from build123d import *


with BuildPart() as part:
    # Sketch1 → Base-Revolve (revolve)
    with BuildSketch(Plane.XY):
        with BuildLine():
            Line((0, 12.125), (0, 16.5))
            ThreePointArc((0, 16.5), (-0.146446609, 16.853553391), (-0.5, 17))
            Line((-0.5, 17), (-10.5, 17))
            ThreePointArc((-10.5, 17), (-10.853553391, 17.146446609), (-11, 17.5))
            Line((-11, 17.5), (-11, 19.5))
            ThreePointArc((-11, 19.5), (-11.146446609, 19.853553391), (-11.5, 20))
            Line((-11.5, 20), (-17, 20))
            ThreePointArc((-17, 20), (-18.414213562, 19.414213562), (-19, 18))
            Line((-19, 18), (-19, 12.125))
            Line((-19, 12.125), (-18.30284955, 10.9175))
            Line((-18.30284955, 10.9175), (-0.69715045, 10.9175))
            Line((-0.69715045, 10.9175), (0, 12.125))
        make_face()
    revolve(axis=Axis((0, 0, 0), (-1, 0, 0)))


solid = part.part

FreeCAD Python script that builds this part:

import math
import FreeCAD as App
import Part
import Sketcher

V = App.Vector
Q = App.Units.Quantity

doc = App.newDocument("Part")
body = doc.addObject("PartDesign::Body", "Body")

# Sketch on XY plane
sketch1 = doc.addObject("Sketcher::SketchObject", "Sketch")
body.addObject(sketch1)
sketch1.AttachmentSupport = (doc.XY_Plane, [""])
sketch1.MapMode = "FlatFace"
sketch1.addGeometry(Part.LineSegment(V(0, 12.12, 0), V(0, 16.5, 0)), False)
sketch1.addGeometry(Part.ArcOfCircle(Part.Circle(V(-0.5, 16.5, 0), V(0, 0, 1), 0.5), math.radians(0), math.radians(90)), False)
sketch1.addGeometry(Part.LineSegment(V(-0.5, 17, 0), V(-10.5, 17, 0)), False)
sketch1.addGeometry(Part.ArcOfCircle(Part.Circle(V(-10.5, 17.5, 0), V(0, 0, 1), 0.5), math.radians(180), math.radians(270)), False)
sketch1.addGeometry(Part.LineSegment(V(-11, 17.5, 0), V(-11, 19.5, 0)), False)
sketch1.addGeometry(Part.ArcOfCircle(Part.Circle(V(-11.5, 19.5, 0), V(0, 0, 1), 0.5), math.radians(0), math.radians(90)), False)
sketch1.addGeometry(Part.LineSegment(V(-11.5, 20, 0), V(-17, 20, 0)), False)
sketch1.addGeometry(Part.ArcOfCircle(Part.Circle(V(-17, 18, 0), V(0, 0, 1), 2), math.radians(90), math.radians(180)), False)
sketch1.addGeometry(Part.LineSegment(V(-19, 18, 0), V(-19, 12.12, 0)), False)
sketch1.addGeometry(Part.LineSegment(V(-19, 12.12, 0), V(-18.3, 10.92, 0)), False)
sketch1.addGeometry(Part.LineSegment(V(-18.3, 10.92, 0), V(-0.7, 10.92, 0)), False)
sketch1.addGeometry(Part.LineSegment(V(-0.7, 10.92, 0), V(0, 12.12, 0)), False)
sketch1.addConstraint(Sketcher.Constraint("Tangent", 0, 2, 1, 1))
sketch1.addConstraint(Sketcher.Constraint("Tangent", 1, 2, 2, 1))
sketch1.addConstraint(Sketcher.Constraint("Tangent", 2, 2, 3, 2))
sketch1.addConstraint(Sketcher.Constraint("Tangent", 3, 1, 4, 1))
sketch1.addConstraint(Sketcher.Constraint("Tangent", 4, 2, 5, 1))
sketch1.addConstraint(Sketcher.Constraint("Tangent", 5, 2, 6, 1))
sketch1.addConstraint(Sketcher.Constraint("Tangent", 6, 2, 7, 1))
sketch1.addConstraint(Sketcher.Constraint("Tangent", 7, 2, 8, 1))
sketch1.addConstraint(Sketcher.Constraint("Coincident", 8, 2, 9, 1))
sketch1.addConstraint(Sketcher.Constraint("Coincident", 9, 2, 10, 1))
sketch1.addConstraint(Sketcher.Constraint("Coincident", 10, 2, 11, 1))
sketch1.addConstraint(Sketcher.Constraint("Coincident", 11, 2, 0, 1))
sketch1.addConstraint(Sketcher.Constraint("Vertical", 0))
sketch1.addConstraint(Sketcher.Constraint("Horizontal", 2))
sketch1.addConstraint(Sketcher.Constraint("Vertical", 4))
sketch1.addConstraint(Sketcher.Constraint("Horizontal", 6))
sketch1.addConstraint(Sketcher.Constraint("Vertical", 8))
sketch1.addConstraint(Sketcher.Constraint("Horizontal", 10))
sketch1.addConstraint(Sketcher.Constraint("Equal", 1, 3))
sketch1.addConstraint(Sketcher.Constraint("Equal", 3, 5))
sketch1.addConstraint(Sketcher.Constraint("PointOnObject", 0, 2, -2))
sketch1.addConstraint(Sketcher.Constraint("Horizontal", 8, 2, 11, 2))
sketch1.addConstraint(Sketcher.Constraint("Equal", 9, 11))
sketch1.addConstraint(Sketcher.Constraint("Radius", 7, 2.0))
sketch1.addConstraint(Sketcher.Constraint("Radius", 1, 0.5))
sketch1.addConstraint(Sketcher.Constraint("DistanceX", 2, 2, 2, 1, 10.0))
sketch1.addConstraint(Sketcher.Constraint("DistanceY", 4, 1, 4, 2, 2.0))
sketch1.addConstraint(Sketcher.Constraint("Angle", 9, Q("-60 deg")))
sketch1.addConstraint(Sketcher.Constraint("DistanceX", 6, 2, 6, 1, 5.5))
sketch1.addConstraint(Sketcher.Constraint("DistanceY", -1, 1, 7, 3, 18.0))
sketch1.addConstraint(Sketcher.Constraint("DistanceY", 0, 1, 0, 2, 4.375))
sketch1.addConstraint(Sketcher.Constraint("DistanceX", 10, 1, 10, 2, 17.605699))
revolution = doc.addObject("PartDesign::Revolution", "Revolution")
body.addObject(revolution)
revolution.Profile = sketch1
revolution.ReferenceAxis = (sketch1, ["H_Axis"])
revolution.Angle = 360

doc.recompute()
